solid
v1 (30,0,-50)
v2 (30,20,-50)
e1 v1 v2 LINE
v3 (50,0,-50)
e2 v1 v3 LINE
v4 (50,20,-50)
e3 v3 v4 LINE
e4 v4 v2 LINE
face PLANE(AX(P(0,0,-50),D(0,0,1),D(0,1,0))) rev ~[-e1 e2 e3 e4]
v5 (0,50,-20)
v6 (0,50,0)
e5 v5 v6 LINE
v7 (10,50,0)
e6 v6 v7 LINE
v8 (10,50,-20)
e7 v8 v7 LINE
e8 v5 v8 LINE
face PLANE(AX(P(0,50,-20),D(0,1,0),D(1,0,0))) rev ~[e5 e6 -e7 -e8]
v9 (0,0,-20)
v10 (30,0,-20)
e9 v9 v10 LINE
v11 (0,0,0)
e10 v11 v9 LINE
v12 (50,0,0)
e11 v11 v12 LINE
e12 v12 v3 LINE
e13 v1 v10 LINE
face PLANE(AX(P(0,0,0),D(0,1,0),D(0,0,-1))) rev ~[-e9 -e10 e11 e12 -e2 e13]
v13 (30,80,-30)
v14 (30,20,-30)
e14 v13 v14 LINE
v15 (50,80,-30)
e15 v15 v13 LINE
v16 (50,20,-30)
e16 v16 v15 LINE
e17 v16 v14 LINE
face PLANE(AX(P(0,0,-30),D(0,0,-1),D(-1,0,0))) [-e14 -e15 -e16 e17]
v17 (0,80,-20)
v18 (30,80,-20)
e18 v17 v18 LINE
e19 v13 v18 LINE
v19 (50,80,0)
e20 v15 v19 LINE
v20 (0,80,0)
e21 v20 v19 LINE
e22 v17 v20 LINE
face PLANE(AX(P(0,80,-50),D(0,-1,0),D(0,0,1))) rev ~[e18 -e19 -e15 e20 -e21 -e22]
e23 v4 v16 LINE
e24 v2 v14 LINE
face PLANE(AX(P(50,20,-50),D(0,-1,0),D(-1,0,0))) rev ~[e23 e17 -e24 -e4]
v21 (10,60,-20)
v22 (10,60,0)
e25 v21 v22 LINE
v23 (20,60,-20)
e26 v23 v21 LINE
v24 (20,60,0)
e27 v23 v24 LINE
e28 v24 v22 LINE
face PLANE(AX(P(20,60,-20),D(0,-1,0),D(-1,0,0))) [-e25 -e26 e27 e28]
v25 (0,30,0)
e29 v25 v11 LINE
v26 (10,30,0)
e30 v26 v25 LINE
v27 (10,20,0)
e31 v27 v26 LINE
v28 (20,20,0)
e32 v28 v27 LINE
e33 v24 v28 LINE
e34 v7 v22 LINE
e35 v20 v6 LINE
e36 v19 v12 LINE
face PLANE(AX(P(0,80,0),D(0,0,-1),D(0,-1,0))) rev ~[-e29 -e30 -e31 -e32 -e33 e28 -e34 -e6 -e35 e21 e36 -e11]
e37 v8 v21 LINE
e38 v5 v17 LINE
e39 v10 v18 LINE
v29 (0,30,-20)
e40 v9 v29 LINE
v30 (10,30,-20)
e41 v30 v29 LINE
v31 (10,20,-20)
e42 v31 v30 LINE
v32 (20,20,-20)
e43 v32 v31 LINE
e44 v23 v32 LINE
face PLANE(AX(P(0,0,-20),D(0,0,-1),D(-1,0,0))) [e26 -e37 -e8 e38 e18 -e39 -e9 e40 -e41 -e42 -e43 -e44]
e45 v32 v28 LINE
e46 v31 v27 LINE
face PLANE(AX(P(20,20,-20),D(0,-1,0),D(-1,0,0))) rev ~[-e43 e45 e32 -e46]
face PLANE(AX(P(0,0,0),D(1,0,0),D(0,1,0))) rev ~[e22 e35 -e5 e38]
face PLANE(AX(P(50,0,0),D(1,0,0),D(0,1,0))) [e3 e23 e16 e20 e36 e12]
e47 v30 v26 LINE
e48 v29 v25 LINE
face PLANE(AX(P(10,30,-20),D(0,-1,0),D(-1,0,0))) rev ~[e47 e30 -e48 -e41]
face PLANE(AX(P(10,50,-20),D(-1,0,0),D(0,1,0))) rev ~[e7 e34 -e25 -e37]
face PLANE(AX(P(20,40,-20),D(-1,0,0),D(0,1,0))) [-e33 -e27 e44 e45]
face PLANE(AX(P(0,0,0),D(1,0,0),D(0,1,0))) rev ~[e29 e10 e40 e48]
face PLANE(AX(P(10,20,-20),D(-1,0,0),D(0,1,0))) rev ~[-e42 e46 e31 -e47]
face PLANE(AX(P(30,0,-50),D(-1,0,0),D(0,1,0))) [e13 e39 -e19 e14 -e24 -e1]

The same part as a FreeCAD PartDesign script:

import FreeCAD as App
import Part
import Sketcher
from FreeCAD import Vector


def add_polygon(sketch, points):
    """Adds a closed chain of lines whose ends are joined by coincident constraints."""
    first, n = sketch.GeometryCount, len(points)
    for a, b in zip(points, points[1:] + points[:1]):
        sketch.addGeometry(Part.LineSegment(App.Vector(*a, 0), App.Vector(*b, 0)), False)
    for i in range(n):
        sketch.addConstraint(Sketcher.Constraint("Coincident", first + i, 2, first + (i + 1) % n, 1))

doc = App.newDocument("Part")
body = doc.addObject("PartDesign::Body", "Body")

sketch1 = body.newObject("Sketcher::SketchObject", "Sketch")
sketch1.AttachmentSupport = (doc.getObject("YZ_Plane"), [""])
sketch1.MapMode = "FlatFace"
add_polygon(sketch1, [(80, 0), (0, 0), (0, -50), (80, -50)])
sketch1.addConstraint(Sketcher.Constraint("Horizontal", 0))
sketch1.addConstraint(Sketcher.Constraint("Vertical", 1))
sketch1.addConstraint(Sketcher.Constraint("Horizontal", 2))
sketch1.addConstraint(Sketcher.Constraint("Vertical", 3))
sketch1.addConstraint(Sketcher.Constraint("Coincident", 0, 2, -1, 1))
sketch1.addConstraint(Sketcher.Constraint("DistanceX", 0, 2, 0, 1, 80.0))
sketch1.addConstraint(Sketcher.Constraint("DistanceY", 1, 2, 1, 1, 50.0))
pad1 = body.newObject("PartDesign::Pad", "Pad")
pad1.Profile = sketch1
pad1.Length = 50

sketch2 = body.newObject("Sketcher::SketchObject", "Sketch001")
sketch2.AttachmentSupport = (doc.getObject("XY_Plane"), [""])
sketch2.MapMode = "FlatFace"
sketch2.AttachmentOffset = App.Placement(Vector(0, 0, -50), App.Rotation())
add_polygon(sketch2, [(50, 80), (50, 20), (30, 20), (30, 80)])
sketch2.addConstraint(Sketcher.Constraint("Vertical", 0))
sketch2.addConstraint(Sketcher.Constraint("Horizontal", 1))
sketch2.addConstraint(Sketcher.Constraint("Vertical", 2))
sketch2.addConstraint(Sketcher.Constraint("Horizontal", 3))
sketch2.addConstraint(Sketcher.Constraint("DistanceX", 1, 2, 1, 1, 20.0))
sketch2.addConstraint(Sketcher.Constraint("DistanceY", -1, 1, 0, 2, 20.0))
sketch2.addConstraint(Sketcher.Constraint("DistanceY", 0, 2, 0, 1, 60.0))
sketch2.addConstraint(Sketcher.Constraint("DistanceX", -1, 1, 0, 2, 50.0))
pocket1 = body.newObject("PartDesign::Pocket", "Pocket")
pocket1.Profile = sketch2
pocket1.Length = 20
pocket1.Reversed = True

sketch3 = body.newObject("Sketcher::SketchObject", "Sketch002")
sketch3.AttachmentSupport = (doc.getObject("XY_Plane"), [""])
sketch3.MapMode = "FlatFace"
sketch3.AttachmentOffset = App.Placement(Vector(0, 0, -50), App.Rotation())
add_polygon(sketch3, [(0, 0), (0, 80), (30, 80), (30, 0)])
sketch3.addConstraint(Sketcher.Constraint("Vertical", 0))
sketch3.addConstraint(Sketcher.Constraint("Horizontal", 1))
sketch3.addConstraint(Sketcher.Constraint("Vertical", 2))
sketch3.addConstraint(Sketcher.Constraint("Horizontal", 3))
sketch3.addConstraint(Sketcher.Constraint("Coincident", 3, 2, -1, 1))
sketch3.addConstraint(Sketcher.Constraint("DistanceX", 1, 1, 1, 2, 30.0))
sketch3.addConstraint(Sketcher.Constraint("DistanceY", 0, 1, 0, 2, 80.0))
pocket2 = body.newObject("PartDesign::Pocket", "Pocket001")
pocket2.Profile = sketch3
pocket2.Length = 30
pocket2.Reversed = True

sketch4 = body.newObject("Sketcher::SketchObject", "Sketch003")
sketch4.AttachmentSupport = (doc.getObject("XY_Plane"), [""])
sketch4.MapMode = "FlatFace"
sketch4.AttachmentOffset = App.Placement(Vector(0, 0, -20), App.Rotation())
add_polygon(sketch4, [(0, 40), (0, 50), (10, 50), (10, 60), (20, 60), (20, 40)])
sketch4.addConstraint(Sketcher.Constraint("Vertical", 0))
sketch4.addConstraint(Sketcher.Constraint("Horizontal", 1))
sketch4.addConstraint(Sketcher.Constraint("Vertical", 2))
sketch4.addConstraint(Sketcher.Constraint("Horizontal", 3))
sketch4.addConstraint(Sketcher.Constraint("Vertical", 4))
sketch4.addConstraint(Sketcher.Constraint("Horizontal", 5))
sketch4.addConstraint(Sketcher.Constraint("PointOnObject", 0, 2, -2))
sketch4.addConstraint(Sketcher.Constraint("Equal", 1, 3))
sketch4.addConstraint(Sketcher.Constraint("Equal", 3, 0))
sketch4.addConstraint(Sketcher.Constraint("Equal", 0, 2))
sketch4.addConstraint(Sketcher.Constraint("DistanceX", 1, 1, 1, 2, 10.0))
sketch4.addConstraint(Sketcher.Constraint("DistanceY", -1, 1, 0, 2, 50.0))
pocket3 = body.newObject("PartDesign::Pocket", "Pocket002")
pocket3.Profile = sketch4
pocket3.Length = 30
pocket3.Reversed = True

sketch5 = body.newObject("Sketcher::SketchObject", "Sketch004")
sketch5.AttachmentSupport = (doc.getObject("XY_Plane"), [""])
sketch5.MapMode = "FlatFace"
sketch5.AttachmentOffset = App.Placement(Vector(0, 0, -20), App.Rotation())
add_polygon(sketch5, [(0, 30), (0, 40), (20, 40), (20, 20), (10, 20), (10, 30)])
sketch5.addConstraint(Sketcher.Constraint("Vertical", 0))
sketch5.addConstraint(Sketcher.Constraint("Horizontal", 1))
sketch5.addConstraint(Sketcher.Constraint("Vertical", 2))
sketch5.addConstraint(Sketcher.Constraint("Horizontal", 3))
sketch5.addConstraint(Sketcher.Constraint("Vertical", 4))
sketch5.addConstraint(Sketcher.Constraint("Horizontal", 5))
sketch5.addConstraint(Sketcher.Constraint("PointOnObject", 0, 2, -2))
sketch5.addConstraint(Sketcher.Constraint("Equal", 3, 5))
sketch5.addConstraint(Sketcher.Constraint("Equal", 5, 0))
sketch5.addConstraint(Sketcher.Constraint("Equal", 1, 2))
sketch5.addConstraint(Sketcher.Constraint("DistanceX", 1, 1, 1, 2, 20.0))
sketch5.addConstraint(Sketcher.Constraint("DistanceY", -1, 1, 2, 2, 20.0))
pocket4 = body.newObject("PartDesign::Pocket", "Pocket003")
pocket4.Profile = sketch5
pocket4.Length = 30
pocket4.Reversed = True

doc.recompute()
